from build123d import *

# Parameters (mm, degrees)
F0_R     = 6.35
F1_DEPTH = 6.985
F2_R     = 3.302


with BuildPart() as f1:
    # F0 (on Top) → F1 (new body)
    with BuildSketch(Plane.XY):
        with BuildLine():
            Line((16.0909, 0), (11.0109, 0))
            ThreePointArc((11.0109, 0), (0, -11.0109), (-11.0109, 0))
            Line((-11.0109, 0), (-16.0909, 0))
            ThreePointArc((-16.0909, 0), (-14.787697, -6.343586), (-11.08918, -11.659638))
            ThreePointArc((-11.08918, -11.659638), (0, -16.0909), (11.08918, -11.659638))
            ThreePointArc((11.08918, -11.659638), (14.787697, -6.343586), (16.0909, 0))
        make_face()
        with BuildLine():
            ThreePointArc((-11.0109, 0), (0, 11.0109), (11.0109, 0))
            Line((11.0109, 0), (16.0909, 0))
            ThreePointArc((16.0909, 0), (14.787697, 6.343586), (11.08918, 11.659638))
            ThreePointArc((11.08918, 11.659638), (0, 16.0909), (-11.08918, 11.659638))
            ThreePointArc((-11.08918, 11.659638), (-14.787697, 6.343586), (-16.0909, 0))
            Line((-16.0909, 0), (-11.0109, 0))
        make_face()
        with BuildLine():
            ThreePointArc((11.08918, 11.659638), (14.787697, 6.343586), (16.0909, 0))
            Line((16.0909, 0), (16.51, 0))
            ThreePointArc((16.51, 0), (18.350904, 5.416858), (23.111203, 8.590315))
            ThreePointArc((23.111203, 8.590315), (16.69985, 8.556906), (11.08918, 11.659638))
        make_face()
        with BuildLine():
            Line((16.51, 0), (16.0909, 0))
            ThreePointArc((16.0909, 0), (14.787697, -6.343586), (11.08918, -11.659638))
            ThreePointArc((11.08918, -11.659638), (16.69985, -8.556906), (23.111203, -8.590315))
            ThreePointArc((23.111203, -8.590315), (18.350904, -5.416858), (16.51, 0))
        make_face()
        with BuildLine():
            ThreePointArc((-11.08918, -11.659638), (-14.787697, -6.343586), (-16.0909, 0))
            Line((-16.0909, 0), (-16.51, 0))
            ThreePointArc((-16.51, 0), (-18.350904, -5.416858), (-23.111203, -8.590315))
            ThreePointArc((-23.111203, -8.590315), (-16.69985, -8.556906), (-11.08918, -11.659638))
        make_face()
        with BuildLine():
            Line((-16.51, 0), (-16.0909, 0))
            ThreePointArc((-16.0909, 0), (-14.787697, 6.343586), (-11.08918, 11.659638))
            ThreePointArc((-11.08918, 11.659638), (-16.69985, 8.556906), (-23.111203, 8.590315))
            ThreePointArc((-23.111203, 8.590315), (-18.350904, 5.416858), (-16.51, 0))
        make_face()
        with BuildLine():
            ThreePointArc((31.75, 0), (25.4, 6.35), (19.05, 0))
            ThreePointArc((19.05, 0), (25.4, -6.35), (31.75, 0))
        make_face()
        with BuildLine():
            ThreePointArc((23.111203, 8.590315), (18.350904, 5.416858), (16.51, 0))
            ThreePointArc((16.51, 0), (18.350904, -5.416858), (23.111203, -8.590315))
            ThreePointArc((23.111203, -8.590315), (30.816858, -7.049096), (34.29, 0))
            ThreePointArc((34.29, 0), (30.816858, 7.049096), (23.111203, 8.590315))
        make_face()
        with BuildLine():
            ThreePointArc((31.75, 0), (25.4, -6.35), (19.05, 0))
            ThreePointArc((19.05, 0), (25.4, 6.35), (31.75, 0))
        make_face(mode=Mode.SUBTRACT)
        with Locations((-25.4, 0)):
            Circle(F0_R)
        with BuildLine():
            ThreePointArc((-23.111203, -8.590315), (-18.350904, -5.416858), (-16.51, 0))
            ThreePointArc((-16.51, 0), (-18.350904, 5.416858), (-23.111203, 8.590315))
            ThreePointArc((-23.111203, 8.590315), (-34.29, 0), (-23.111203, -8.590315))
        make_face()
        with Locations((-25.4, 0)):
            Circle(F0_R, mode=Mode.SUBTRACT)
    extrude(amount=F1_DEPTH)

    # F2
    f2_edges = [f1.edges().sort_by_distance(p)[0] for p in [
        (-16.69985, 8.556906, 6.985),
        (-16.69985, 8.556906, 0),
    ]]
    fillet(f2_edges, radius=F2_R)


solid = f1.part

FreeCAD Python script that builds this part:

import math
import FreeCAD as App
import Part
import Sketcher
from FreeCAD import Vector
Q = App.Units.Quantity


def edges_at(feature, points):
    """Names of the edges that pass closest to the given points."""
    edges = feature.Shape.Edges
    near = lambda p: min(range(len(edges)), key=lambda i: edges[i].distToShape(Part.Vertex(*p))[0])
    return sorted({f"Edge{near(p) + 1}" for p in points})

doc = App.newDocument("Part")
body = doc.addObject("PartDesign::Body", "Body")

# Sketch on XY plane
sketch1 = body.newObject("Sketcher::SketchObject", "Sketch")
sketch1.AttachmentSupport = (doc.getObject("XY_Plane"), [""])
sketch1.MapMode = "FlatFace"
sketch1.addGeometry([
    Part.ArcOfCircle(Part.Circle(Vector(0, 0, 0), Vector(0, 0, 1), 16), math.radians(-134), math.radians(-46)),  # 0
    Part.ArcOfCircle(Part.Circle(Vector(20, -21, 0), Vector(0, 0, 1), 13), math.radians(75), math.radians(134)),  # 1
    Part.ArcOfCircle(Part.Circle(Vector(25, 0, 0), Vector(0, 0, 1), 9), math.radians(-105), math.radians(0)),  # 2
    Part.ArcOfCircle(Part.Circle(Vector(25, 0, 0), Vector(0, 0, 1), 9), math.radians(0), math.radians(105)),  # 3
    Part.ArcOfCircle(Part.Circle(Vector(20, 21, 0), Vector(0, 0, 1), 13), math.radians(-134), math.radians(-75)),  # 4
    Part.ArcOfCircle(Part.Circle(Vector(0, 0, 0), Vector(0, 0, 1), 16), math.radians(46), math.radians(134)),  # 5
    Part.ArcOfCircle(Part.Circle(Vector(-20, 21, 0), Vector(0, 0, 1), 13), math.radians(-105), math.radians(-46)),  # 6
    Part.ArcOfCircle(Part.Circle(Vector(-25, 0, 0), Vector(0, 0, 1), 9), math.radians(75), math.radians(285)),  # 7
    Part.ArcOfCircle(Part.Circle(Vector(-20, -21, 0), Vector(0, 0, 1), 13), math.radians(46), math.radians(105)),  # 8
    Part.Circle(Vector(-25, 0, 0), Vector(0, 0, 1), 6),  # 9
    Part.Circle(Vector(0, 0, 0), Vector(0, 0, 1), 11),  # 10
    Part.Circle(Vector(25, 0, 0), Vector(0, 0, 1), 6),  # 11
], False)
sketch1.addConstraint([
    Sketcher.Constraint("Tangent", 0, 2, 1, 2),
    Sketcher.Constraint("Tangent", 1, 1, 2, 1),
    Sketcher.Constraint("Tangent", 2, 2, 3, 1),
    Sketcher.Constraint("Tangent", 3, 2, 4, 2),
    Sketcher.Constraint("Tangent", 4, 1, 5, 1),
    Sketcher.Constraint("Tangent", 5, 2, 6, 2),
    Sketcher.Constraint("Tangent", 6, 1, 7, 1),
    Sketcher.Constraint("Tangent", 7, 2, 8, 2),
    Sketcher.Constraint("Tangent", 8, 1, 0, 1),
    Sketcher.Constraint("Coincident", 0, 3, -1, 1),
    Sketcher.Constraint("Coincident", 5, 3, -1, 1),
    Sketcher.Constraint("Coincident", 10, 3, -1, 1),
    Sketcher.Constraint("Coincident", 9, 3, 7, 3),
    Sketcher.Constraint("Coincident", 11, 3, 2, 3),
    Sketcher.Constraint("Equal", 2, 3),
    Sketcher.Constraint("Equal", 1, 4),
    Sketcher.Constraint("Equal", 0, 5),
    Sketcher.Constraint("Equal", 4, 6),
    Sketcher.Constraint("Equal", 3, 7),
    Sketcher.Constraint("Equal", 6, 8),
    Sketcher.Constraint("Equal", 9, 11),
    Sketcher.Constraint("Symmetric", 2, 3, 7, 3, -1, 1),
    Sketcher.Constraint("PointOnObject", 2, 3, -1),
    Sketcher.Constraint("PointOnObject", 2, 2, -1),
    Sketcher.Constraint("Diameter", 9, Q("0.5 in")),
    Sketcher.Constraint("Radius", 1, Q("0.4999999 in")),
    Sketcher.Constraint("Radius", 2, Q("0.35 in")),
    Sketcher.Constraint("Diameter", 10, Q("0.867 in")),
    Sketcher.Constraint("DistanceX", -1, 1, 2, 3, Q("1 in")),
    Sketcher.Constraint("Radius", 0, Q("0.6335 in")),
])
pad1 = body.newObject("PartDesign::Pad", "Pad")
pad1.Profile = sketch1
pad1.Length = Q("0.275 in")
doc.recompute()

fillet = body.newObject("PartDesign::Fillet", "Fillet")
fillet.Base = (pad1, edges_at(pad1, [(-16.7, 8.557, 6.985), (-16.7, 8.557, 0)]))
fillet.Radius = Q("0.13 in")

doc.recompute()
